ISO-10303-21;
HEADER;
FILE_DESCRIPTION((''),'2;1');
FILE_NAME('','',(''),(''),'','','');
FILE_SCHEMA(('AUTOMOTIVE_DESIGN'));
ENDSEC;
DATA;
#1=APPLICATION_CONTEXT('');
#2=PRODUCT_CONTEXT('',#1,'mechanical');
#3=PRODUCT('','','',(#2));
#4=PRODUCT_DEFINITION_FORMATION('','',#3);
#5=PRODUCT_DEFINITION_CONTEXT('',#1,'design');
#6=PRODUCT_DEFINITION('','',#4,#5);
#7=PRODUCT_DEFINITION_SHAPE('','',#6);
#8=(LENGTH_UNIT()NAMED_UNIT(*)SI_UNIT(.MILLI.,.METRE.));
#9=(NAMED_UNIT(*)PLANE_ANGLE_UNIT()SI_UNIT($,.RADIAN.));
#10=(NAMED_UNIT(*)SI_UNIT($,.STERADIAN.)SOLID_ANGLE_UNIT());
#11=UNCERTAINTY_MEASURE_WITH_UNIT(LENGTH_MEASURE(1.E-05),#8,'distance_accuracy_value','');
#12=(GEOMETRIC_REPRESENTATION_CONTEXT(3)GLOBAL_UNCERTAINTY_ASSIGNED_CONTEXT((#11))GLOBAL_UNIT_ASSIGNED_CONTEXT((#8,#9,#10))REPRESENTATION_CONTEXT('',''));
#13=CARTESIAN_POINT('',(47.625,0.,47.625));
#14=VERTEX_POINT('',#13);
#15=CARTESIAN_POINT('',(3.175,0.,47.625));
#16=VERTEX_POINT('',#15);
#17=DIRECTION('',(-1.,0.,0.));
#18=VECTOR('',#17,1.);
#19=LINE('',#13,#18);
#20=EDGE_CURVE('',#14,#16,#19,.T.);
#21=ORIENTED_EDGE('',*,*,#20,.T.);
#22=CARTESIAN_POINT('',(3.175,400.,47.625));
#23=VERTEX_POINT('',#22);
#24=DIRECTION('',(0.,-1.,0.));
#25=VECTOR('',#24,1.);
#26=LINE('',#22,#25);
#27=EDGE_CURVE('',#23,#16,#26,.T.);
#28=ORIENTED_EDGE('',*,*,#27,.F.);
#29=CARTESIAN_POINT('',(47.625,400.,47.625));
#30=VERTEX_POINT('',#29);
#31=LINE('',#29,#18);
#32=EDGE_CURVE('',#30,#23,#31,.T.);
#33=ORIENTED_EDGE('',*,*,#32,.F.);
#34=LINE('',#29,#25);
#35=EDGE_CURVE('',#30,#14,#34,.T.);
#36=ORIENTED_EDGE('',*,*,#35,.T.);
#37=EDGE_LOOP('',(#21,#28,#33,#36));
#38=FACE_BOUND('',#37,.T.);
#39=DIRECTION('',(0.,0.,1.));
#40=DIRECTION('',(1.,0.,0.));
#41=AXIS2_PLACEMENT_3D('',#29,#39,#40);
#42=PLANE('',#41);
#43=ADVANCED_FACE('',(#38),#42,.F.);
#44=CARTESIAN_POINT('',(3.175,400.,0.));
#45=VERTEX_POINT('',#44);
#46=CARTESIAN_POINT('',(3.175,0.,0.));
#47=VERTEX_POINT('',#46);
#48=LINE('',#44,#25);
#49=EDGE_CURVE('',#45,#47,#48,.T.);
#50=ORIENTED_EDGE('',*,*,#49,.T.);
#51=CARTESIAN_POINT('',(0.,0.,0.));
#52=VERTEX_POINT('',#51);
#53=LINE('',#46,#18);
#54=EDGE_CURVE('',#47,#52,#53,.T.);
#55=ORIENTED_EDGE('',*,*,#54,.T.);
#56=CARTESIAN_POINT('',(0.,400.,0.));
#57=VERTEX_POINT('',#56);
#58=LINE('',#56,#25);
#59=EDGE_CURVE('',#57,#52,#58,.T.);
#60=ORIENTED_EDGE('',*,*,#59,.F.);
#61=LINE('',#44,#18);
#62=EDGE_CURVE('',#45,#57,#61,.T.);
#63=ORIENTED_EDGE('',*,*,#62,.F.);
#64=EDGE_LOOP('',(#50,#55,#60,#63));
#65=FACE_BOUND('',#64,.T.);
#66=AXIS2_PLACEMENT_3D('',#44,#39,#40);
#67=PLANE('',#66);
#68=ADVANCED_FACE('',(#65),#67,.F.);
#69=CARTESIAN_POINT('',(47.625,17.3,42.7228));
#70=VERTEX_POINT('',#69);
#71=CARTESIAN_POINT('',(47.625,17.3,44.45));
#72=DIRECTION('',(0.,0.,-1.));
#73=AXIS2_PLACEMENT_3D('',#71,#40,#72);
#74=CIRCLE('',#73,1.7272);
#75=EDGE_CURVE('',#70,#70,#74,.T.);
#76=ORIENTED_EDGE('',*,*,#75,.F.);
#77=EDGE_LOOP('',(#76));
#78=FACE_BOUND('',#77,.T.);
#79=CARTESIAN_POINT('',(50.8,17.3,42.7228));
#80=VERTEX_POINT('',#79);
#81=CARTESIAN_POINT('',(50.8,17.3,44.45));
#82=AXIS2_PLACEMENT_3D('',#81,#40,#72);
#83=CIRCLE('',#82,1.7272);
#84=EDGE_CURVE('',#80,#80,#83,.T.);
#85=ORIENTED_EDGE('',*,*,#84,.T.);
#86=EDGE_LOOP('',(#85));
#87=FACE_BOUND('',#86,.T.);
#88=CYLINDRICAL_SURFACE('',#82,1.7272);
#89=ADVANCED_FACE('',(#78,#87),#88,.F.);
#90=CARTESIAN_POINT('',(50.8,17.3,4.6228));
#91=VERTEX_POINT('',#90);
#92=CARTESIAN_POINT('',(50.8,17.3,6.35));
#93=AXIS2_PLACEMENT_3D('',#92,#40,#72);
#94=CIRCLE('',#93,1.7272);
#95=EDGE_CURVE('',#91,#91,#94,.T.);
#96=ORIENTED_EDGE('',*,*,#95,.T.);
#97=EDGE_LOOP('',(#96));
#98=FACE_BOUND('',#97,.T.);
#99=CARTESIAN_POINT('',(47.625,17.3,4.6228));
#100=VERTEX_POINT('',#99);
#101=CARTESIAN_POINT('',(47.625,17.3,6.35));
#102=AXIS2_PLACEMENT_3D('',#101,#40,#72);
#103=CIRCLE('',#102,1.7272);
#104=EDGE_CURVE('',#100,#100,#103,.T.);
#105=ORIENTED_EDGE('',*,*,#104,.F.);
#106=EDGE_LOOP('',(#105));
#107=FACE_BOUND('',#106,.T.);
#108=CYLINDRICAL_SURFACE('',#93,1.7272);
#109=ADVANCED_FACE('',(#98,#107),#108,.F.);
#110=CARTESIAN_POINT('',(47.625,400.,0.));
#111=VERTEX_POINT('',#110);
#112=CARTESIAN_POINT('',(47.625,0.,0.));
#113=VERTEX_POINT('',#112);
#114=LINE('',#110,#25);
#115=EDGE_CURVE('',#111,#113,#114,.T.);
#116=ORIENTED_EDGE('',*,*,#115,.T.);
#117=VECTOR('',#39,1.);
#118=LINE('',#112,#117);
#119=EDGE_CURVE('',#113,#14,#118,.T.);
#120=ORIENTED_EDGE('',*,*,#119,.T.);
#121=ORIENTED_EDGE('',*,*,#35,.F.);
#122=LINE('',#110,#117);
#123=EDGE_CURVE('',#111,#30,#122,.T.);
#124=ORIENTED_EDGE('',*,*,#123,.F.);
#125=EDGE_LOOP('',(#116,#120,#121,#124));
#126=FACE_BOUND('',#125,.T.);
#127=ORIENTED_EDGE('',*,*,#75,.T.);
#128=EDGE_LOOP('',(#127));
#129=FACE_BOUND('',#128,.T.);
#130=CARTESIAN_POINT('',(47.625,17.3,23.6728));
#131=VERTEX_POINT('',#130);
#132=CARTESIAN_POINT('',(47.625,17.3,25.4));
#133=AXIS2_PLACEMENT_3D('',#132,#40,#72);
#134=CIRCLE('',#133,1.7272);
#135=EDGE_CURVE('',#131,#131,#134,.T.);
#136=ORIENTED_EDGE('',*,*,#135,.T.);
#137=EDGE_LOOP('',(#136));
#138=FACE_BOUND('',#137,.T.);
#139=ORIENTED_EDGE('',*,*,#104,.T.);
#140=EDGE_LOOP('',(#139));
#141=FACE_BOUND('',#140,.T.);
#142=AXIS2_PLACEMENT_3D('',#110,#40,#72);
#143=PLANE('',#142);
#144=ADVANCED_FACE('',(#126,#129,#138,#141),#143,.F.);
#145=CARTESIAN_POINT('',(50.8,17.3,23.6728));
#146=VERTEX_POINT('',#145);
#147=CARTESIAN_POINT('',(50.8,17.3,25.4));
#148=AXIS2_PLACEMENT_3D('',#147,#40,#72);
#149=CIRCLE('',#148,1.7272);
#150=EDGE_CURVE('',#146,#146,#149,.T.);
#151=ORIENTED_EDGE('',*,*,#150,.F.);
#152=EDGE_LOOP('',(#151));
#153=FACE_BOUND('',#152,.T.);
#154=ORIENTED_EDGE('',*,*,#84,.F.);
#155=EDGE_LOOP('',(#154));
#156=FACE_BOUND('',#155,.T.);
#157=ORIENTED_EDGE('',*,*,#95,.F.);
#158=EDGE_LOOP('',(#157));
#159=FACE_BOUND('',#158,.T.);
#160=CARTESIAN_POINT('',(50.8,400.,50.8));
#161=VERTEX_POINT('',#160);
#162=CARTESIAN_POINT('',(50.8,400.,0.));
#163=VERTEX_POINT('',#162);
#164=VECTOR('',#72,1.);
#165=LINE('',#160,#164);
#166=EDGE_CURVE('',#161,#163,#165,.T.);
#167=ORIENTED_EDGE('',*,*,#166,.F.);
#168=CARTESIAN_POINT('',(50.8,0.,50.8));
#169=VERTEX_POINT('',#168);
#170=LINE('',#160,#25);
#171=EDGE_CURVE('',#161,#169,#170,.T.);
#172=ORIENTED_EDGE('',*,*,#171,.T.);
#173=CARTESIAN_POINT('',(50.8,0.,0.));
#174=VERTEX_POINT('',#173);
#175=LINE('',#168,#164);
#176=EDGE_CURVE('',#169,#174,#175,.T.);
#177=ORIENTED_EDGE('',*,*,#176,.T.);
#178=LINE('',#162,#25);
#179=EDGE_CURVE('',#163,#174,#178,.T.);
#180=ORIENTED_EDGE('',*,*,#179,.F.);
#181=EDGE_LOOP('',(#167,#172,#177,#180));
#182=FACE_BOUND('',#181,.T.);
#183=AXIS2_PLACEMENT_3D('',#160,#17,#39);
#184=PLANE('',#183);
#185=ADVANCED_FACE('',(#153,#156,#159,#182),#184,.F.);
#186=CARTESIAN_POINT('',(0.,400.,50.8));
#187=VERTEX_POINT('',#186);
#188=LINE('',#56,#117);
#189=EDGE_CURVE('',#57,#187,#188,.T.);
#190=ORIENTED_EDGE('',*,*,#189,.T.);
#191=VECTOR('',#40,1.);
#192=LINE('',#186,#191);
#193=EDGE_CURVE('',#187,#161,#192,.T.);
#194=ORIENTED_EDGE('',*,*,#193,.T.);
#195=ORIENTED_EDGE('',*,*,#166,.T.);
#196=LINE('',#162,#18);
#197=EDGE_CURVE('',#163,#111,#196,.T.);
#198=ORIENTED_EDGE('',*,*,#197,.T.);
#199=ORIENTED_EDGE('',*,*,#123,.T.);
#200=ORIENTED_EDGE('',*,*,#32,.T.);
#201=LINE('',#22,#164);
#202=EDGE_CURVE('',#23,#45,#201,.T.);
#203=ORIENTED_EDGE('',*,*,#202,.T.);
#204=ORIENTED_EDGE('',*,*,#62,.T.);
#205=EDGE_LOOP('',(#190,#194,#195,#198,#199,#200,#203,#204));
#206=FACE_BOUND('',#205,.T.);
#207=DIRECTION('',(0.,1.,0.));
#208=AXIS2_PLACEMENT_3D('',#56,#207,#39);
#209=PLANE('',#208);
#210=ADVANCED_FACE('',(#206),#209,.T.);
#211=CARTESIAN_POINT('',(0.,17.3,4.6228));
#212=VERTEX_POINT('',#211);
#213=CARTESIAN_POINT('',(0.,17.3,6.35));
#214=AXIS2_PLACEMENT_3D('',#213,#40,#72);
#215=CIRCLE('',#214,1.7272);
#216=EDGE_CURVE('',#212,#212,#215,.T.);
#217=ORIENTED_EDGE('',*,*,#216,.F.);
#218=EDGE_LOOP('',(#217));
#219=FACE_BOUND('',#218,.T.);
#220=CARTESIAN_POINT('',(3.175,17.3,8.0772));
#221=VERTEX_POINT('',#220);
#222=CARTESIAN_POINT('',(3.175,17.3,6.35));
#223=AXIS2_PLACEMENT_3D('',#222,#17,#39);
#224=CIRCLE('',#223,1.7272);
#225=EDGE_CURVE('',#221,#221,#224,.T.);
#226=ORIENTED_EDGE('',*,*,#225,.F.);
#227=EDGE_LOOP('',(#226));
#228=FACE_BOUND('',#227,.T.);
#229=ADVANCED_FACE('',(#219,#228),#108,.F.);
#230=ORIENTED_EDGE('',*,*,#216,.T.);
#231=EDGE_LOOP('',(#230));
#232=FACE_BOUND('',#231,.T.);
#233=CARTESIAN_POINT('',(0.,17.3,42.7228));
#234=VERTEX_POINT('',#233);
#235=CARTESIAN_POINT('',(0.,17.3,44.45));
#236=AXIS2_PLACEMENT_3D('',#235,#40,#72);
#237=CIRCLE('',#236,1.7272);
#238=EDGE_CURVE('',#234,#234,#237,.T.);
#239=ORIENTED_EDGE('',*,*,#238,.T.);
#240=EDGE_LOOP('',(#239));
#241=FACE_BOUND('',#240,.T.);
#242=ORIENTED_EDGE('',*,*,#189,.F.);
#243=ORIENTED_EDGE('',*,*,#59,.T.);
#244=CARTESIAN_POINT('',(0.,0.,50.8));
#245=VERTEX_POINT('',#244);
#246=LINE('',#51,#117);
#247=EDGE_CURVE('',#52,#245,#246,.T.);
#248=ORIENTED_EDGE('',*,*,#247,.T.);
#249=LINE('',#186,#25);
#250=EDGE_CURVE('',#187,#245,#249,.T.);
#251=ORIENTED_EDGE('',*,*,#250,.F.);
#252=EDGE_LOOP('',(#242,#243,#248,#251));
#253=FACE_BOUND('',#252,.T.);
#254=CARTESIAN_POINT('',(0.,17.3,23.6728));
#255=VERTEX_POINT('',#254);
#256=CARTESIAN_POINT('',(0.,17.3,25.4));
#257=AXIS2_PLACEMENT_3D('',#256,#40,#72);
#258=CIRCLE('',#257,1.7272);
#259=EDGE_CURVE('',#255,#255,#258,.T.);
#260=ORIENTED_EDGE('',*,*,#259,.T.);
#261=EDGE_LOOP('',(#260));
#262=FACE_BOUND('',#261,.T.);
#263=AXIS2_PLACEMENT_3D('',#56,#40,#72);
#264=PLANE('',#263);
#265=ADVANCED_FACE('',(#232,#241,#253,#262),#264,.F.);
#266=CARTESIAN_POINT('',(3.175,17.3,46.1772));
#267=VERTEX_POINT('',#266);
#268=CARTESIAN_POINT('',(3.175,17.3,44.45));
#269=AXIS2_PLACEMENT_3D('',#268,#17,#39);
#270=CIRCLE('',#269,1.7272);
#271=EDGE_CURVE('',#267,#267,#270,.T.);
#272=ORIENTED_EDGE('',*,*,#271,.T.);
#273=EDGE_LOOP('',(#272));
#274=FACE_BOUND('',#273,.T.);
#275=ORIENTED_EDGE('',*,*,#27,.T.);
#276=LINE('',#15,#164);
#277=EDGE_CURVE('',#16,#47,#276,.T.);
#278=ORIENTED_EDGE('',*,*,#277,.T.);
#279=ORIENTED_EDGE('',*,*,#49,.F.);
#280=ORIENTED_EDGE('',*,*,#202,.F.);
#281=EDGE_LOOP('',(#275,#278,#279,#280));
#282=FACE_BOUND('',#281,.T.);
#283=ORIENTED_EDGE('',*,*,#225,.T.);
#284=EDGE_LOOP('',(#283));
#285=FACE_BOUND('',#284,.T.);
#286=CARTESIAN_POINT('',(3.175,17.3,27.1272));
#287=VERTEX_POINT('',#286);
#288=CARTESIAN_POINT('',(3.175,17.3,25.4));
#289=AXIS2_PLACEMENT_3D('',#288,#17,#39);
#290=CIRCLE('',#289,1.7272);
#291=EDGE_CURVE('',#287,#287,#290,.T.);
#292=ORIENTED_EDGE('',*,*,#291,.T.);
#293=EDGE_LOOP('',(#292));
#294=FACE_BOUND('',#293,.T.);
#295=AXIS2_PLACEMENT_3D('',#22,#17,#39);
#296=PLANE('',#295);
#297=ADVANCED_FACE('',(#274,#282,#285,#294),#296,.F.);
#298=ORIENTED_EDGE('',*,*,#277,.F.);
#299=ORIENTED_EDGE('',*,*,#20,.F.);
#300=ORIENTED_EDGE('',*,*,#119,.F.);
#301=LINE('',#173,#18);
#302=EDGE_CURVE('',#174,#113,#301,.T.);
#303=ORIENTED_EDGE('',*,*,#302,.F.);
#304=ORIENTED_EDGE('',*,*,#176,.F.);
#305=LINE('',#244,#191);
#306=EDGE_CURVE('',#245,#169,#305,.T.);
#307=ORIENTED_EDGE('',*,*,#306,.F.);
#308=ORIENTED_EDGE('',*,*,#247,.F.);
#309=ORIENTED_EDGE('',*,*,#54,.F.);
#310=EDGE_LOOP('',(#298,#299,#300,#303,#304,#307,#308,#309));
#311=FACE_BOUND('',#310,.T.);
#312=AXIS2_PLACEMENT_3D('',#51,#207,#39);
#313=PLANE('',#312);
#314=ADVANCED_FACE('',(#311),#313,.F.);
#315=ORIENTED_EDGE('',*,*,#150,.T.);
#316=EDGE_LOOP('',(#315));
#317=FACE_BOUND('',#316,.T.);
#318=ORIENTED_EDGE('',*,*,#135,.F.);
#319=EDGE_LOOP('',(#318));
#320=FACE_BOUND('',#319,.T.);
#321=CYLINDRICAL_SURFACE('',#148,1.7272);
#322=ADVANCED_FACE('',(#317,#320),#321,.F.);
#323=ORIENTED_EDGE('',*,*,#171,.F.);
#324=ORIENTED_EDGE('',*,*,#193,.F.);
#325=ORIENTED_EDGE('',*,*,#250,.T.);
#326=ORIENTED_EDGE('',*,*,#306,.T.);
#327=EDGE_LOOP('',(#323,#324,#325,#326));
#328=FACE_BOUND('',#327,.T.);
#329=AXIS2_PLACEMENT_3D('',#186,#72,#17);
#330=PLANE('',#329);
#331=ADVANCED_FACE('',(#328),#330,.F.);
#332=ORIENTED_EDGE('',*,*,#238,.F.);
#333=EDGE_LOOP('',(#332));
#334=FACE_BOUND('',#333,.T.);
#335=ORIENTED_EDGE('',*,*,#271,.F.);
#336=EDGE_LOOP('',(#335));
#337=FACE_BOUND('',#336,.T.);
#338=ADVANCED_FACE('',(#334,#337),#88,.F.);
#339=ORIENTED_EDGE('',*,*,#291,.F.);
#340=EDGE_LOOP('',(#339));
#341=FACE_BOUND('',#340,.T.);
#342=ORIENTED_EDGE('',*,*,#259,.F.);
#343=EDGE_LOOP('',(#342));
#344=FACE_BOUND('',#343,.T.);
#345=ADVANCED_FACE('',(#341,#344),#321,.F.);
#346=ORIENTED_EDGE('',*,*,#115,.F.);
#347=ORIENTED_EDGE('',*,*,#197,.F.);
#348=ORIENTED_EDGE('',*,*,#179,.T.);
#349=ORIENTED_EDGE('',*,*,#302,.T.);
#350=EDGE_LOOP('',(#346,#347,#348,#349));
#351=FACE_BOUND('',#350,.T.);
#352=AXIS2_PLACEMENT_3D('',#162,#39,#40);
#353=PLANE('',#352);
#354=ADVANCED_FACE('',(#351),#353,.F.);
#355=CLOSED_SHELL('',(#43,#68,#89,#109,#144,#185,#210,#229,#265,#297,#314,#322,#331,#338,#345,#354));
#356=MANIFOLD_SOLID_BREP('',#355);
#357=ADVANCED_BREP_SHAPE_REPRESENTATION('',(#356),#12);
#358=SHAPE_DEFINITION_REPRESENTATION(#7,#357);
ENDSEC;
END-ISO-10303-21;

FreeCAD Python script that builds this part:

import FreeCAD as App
import Part
import Sketcher
from FreeCAD import Vector
Q = App.Units.Quantity


def add_polygon(sketch, points):
    """Adds a closed chain of lines whose ends are joined by coincident constraints."""
    first, n = sketch.GeometryCount, len(points)
    for a, b in zip(points, points[1:] + points[:1]):
        sketch.addGeometry(Part.LineSegment(App.Vector(*a, 0), App.Vector(*b, 0)), False)
    for i in range(n):
        sketch.addConstraint(Sketcher.Constraint("Coincident", first + i, 2, first + (i + 1) % n, 1))

doc = App.newDocument("Part")
body = doc.addObject("PartDesign::Body", "Body")

sketch1 = body.newObject("Sketcher::SketchObject", "Sketch")
sketch1.AttachmentSupport = (doc.getObject("XZ_Plane"), [""])
sketch1.MapMode = "FlatFace"
add_polygon(sketch1, [(0, 0), (0, 50.8), (50.8, 50.8), (50.8, 0), (47.625, 0), (47.625, 47.625), (3.175, 47.625), (3.175, 0)])
sketch1.addConstraint([
    Sketcher.Constraint("Vertical", 0),
    Sketcher.Constraint("Horizontal", 1),
    Sketcher.Constraint("Vertical", 2),
    Sketcher.Constraint("Horizontal", 3),
    Sketcher.Constraint("Vertical", 4),
    Sketcher.Constraint("Horizontal", 5),
    Sketcher.Constraint("Vertical", 6),
    Sketcher.Constraint("Horizontal", 7),
    Sketcher.Constraint("Coincident", 7, 2, -1, 1),
    Sketcher.Constraint("PointOnObject", 2, 2, -1),
    Sketcher.Constraint("Equal", 3, 7),
    Sketcher.Constraint("Equal", 1, 0),
    Sketcher.Constraint("DistanceX", 1, 1, 1, 2, Q("2 in")),
    Sketcher.Constraint("DistanceX", 5, 2, 5, 1, Q("1.75 in")),
    Sketcher.Constraint("DistanceY", 4, 1, 4, 2, Q("1.875 in")),
])
pad1 = body.newObject("PartDesign::Pad", "Pad")
pad1.Profile = sketch1
pad1.Length = 400
pad1.Reversed = True

sketch2 = body.newObject("Sketcher::SketchObject", "Sketch001")
sketch2.AttachmentSupport = (doc.getObject("YZ_Plane"), [""])
sketch2.MapMode = "FlatFace"
sketch2.AttachmentOffset = App.Placement(Vector(0, 0, 2 * 25.4), App.Rotation())
sketch2.addGeometry([
    Part.Circle(Vector(17.3, 44.45, 0), Vector(0, 0, 1), 1.7272),
    Part.Circle(Vector(17.3, 25.4, 0), Vector(0, 0, 1), 1.7272),
    Part.Circle(Vector(17.3, 6.35, 0), Vector(0, 0, 1), 1.7272),
], False)
sketch2.addConstraint([
    Sketcher.Constraint("Equal", 0, 1),
    Sketcher.Constraint("Equal", 1, 2),
    Sketcher.Constraint("Vertical", 0, 3, 1, 3),
    Sketcher.Constraint("Vertical", 1, 3, 2, 3),
    Sketcher.Constraint("Diameter", 0, Q("0.136 in")),
    Sketcher.Constraint("DistanceY", -1, 1, 1, 3, Q("1 in")),
    Sketcher.Constraint("DistanceY", 2, 3, 0, 3, Q("1.5 in")),
    Sketcher.Constraint("DistanceY", -1, 1, 0, 3, Q("1.75 in")),
    Sketcher.Constraint("DistanceX", -1, 1, 0, 3, 17.3),
])
doc.recompute()
hole = body.newObject("PartDesign::Hole", "Hole")
hole.Profile = sketch2
hole.ThreadType = "None"
hole.Diameter = Q("0.136 in")
hole.DepthType = "ThroughAll"

doc.recompute()
